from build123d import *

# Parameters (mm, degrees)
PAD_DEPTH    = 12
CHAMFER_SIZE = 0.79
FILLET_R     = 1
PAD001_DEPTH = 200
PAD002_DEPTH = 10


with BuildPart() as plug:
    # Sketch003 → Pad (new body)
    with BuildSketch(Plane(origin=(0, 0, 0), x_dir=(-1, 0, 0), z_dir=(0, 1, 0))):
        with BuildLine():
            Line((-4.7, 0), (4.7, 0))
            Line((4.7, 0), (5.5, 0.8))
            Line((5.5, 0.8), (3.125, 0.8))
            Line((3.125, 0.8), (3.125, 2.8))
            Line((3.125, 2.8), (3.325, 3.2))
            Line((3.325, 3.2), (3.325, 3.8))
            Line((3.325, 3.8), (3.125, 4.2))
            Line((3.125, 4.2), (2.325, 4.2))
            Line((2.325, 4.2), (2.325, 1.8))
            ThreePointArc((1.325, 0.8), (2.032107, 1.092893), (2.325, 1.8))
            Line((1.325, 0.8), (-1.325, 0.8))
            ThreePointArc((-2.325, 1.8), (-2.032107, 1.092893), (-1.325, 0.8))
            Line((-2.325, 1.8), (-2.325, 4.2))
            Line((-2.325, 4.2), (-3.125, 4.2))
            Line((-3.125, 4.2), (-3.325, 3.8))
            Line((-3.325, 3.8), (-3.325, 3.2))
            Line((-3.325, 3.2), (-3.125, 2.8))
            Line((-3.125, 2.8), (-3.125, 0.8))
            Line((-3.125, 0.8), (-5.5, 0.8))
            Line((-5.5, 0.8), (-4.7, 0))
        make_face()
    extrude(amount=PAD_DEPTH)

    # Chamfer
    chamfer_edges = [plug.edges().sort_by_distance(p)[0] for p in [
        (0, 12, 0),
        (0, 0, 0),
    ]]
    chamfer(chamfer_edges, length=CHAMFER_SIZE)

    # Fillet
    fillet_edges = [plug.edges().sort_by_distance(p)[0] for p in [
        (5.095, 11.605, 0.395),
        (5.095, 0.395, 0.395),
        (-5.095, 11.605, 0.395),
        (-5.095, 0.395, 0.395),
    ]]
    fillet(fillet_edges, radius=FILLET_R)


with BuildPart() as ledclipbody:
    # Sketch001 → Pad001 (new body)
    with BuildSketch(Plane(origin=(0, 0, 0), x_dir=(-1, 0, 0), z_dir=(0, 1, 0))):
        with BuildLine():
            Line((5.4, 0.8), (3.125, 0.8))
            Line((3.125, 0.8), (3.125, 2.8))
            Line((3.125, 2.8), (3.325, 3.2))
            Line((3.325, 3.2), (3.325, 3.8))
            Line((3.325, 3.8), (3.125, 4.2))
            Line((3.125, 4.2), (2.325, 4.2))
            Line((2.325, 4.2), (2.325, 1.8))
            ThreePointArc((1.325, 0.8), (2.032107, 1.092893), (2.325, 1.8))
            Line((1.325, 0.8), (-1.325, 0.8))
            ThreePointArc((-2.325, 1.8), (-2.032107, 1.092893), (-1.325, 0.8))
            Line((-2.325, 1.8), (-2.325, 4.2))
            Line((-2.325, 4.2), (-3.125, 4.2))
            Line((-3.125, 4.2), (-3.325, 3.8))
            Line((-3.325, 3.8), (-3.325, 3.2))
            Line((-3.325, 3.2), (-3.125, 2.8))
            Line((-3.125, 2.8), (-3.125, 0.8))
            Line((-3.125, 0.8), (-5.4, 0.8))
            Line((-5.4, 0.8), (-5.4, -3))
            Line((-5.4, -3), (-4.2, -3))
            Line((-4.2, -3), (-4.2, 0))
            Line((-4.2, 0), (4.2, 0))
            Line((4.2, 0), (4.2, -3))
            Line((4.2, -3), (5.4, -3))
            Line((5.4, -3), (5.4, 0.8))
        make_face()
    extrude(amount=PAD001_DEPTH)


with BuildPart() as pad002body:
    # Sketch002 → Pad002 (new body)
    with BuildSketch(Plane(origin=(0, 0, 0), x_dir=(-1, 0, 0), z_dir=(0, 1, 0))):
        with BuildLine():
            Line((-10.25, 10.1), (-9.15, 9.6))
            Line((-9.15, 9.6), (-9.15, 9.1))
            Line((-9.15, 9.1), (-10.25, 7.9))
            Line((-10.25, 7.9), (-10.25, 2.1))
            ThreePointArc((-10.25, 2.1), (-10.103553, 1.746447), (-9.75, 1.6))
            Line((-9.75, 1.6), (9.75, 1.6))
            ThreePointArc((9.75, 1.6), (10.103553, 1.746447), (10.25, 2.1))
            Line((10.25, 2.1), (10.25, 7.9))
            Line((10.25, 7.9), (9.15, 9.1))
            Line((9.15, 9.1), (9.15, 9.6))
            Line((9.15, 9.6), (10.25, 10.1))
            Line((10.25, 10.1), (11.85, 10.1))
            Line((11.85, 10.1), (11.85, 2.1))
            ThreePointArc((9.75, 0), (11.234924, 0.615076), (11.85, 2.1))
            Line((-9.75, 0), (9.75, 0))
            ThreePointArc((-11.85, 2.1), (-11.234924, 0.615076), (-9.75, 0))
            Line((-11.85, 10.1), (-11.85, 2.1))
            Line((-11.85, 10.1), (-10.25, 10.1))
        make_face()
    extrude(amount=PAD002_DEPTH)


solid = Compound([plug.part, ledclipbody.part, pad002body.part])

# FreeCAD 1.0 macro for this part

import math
import FreeCAD as App
import Part
import Sketcher


def edges_at(feature, points):
    """Names of the edges that pass closest to the given points."""
    edges = feature.Shape.Edges
    near = lambda p: min(range(len(edges)), key=lambda i: edges[i].distToShape(Part.Vertex(*p))[0])
    return sorted({f"Edge{near(p) + 1}" for p in points})

doc = App.newDocument("Part")
params = doc.addObject("Spreadsheet::Sheet", "Params")
for row, (alias, value) in enumerate([
    ("sketch1_radius", "0.999999 mm"),
    ("sketch1_height", "2 mm"),
    ("sketch1_width", "9.4 mm"),
    ("sketch1_width2", "0.8 mm"),
    ("sketch1_height2", "0.6 mm"),
    ("pad1_length", "12 mm"),
    ("chamfer_size", "0.79 mm"),
    ("fillet_radius", "1 mm"),
    ("sketch2_radius", "0.999999 mm"),
    ("sketch2_height", "2 mm"),
    ("sketch2_height2", "3 mm"),
    ("sketch2_width", "0.8 mm"),
    ("sketch2_width2", "1.2 mm"),
    ("pad2_length", "200 mm"),
    ("sketch3_radius", "2.100001 mm"),
    ("sketch3_radius2", "0.500001 mm"),
    ("sketch3_height", "8 mm"),
    ("sketch3_width", "19.5 mm"),
    ("sketch3_height2", "0.5 mm"),
    ("pad3_length", "10 mm"),
], start=1):
    params.set(f"A{row}", alias)
    params.set(f"B{row}", "=" + value)
    params.setAlias(f"B{row}", alias)

body = doc.addObject("PartDesign::Body", "Body")

# Sketch on XZ plane
sketch1 = body.newObject("Sketcher::SketchObject", "Sketch")
sketch1.AttachmentSupport = (doc.getObject("XZ_Plane"), [""])
sketch1.MapMode = "FlatFace"
sketch1.addGeometry([
    Part.LineSegment(App.Vector(4.7, 0, 0), App.Vector(-4.7, 0, 0)),  # 0
    Part.LineSegment(App.Vector(-4.7, 0, 0), App.Vector(-5.5, 0.8, 0)),  # 1
    Part.LineSegment(App.Vector(-5.5, 0.8, 0), App.Vector(-3.12, 0.8, 0)),  # 2
    Part.LineSegment(App.Vector(-3.12, 0.8, 0), App.Vector(-3.12, 2.8, 0)),  # 3
    Part.LineSegment(App.Vector(-3.12, 2.8, 0), App.Vector(-3.33, 3.2, 0)),  # 4
    Part.LineSegment(App.Vector(-3.33, 3.2, 0), App.Vector(-3.33, 3.8, 0)),  # 5
    Part.LineSegment(App.Vector(-3.33, 3.8, 0), App.Vector(-3.12, 4.2, 0)),  # 6
    Part.LineSegment(App.Vector(-3.12, 4.2, 0), App.Vector(-2.33, 4.2, 0)),  # 7
    Part.LineSegment(App.Vector(-2.33, 4.2, 0), App.Vector(-2.33, 1.8, 0)),  # 8
    Part.ArcOfCircle(Part.Circle(App.Vector(-1.33, 1.8, 0), App.Vector(0, 0, 1), 1), math.radians(180), math.radians(270)),  # 9
    Part.LineSegment(App.Vector(-1.32, 0.8, 0), App.Vector(1.32, 0.8, 0)),  # 10
    Part.ArcOfCircle(Part.Circle(App.Vector(1.33, 1.8, 0), App.Vector(0, 0, 1), 1), math.radians(-90), math.radians(0)),  # 11
    Part.LineSegment(App.Vector(2.33, 1.8, 0), App.Vector(2.33, 4.2, 0)),  # 12
    Part.LineSegment(App.Vector(2.33, 4.2, 0), App.Vector(3.12, 4.2, 0)),  # 13
    Part.LineSegment(App.Vector(3.12, 4.2, 0), App.Vector(3.33, 3.8, 0)),  # 14
    Part.LineSegment(App.Vector(3.33, 3.8, 0), App.Vector(3.33, 3.2, 0)),  # 15
    Part.LineSegment(App.Vector(3.33, 3.2, 0), App.Vector(3.12, 2.8, 0)),  # 16
    Part.LineSegment(App.Vector(3.12, 2.8, 0), App.Vector(3.12, 0.8, 0)),  # 17
    Part.LineSegment(App.Vector(3.12, 0.8, 0), App.Vector(5.5, 0.8, 0)),  # 18
    Part.LineSegment(App.Vector(5.5, 0.8, 0), App.Vector(4.7, 0, 0)),  # 19
], False)
sketch1.addConstraint([
    Sketcher.Constraint("Coincident", 0, 2, 1, 1),
    Sketcher.Constraint("Coincident", 1, 2, 2, 1),
    Sketcher.Constraint("Coincident", 2, 2, 3, 1),
    Sketcher.Constraint("Coincident", 3, 2, 4, 1),
    Sketcher.Constraint("Coincident", 4, 2, 5, 1),
    Sketcher.Constraint("Coincident", 5, 2, 6, 1),
    Sketcher.Constraint("Coincident", 6, 2, 7, 1),
    Sketcher.Constraint("Coincident", 7, 2, 8, 1),
    Sketcher.Constraint("Tangent", 8, 2, 9, 1),
    Sketcher.Constraint("Tangent", 9, 2, 10, 1),
    Sketcher.Constraint("Tangent", 10, 2, 11, 1),
    Sketcher.Constraint("Tangent", 11, 2, 12, 1),
    Sketcher.Constraint("Coincident", 12, 2, 13, 1),
    Sketcher.Constraint("Coincident", 13, 2, 14, 1),
    Sketcher.Constraint("Coincident", 14, 2, 15, 1),
    Sketcher.Constraint("Coincident", 15, 2, 16, 1),
    Sketcher.Constraint("Coincident", 16, 2, 17, 1),
    Sketcher.Constraint("Coincident", 17, 2, 18, 1),
    Sketcher.Constraint("Coincident", 18, 2, 19, 1),
    Sketcher.Constraint("Coincident", 19, 2, 0, 1),
    Sketcher.Constraint("Horizontal", 0),
    Sketcher.Constraint("Horizontal", 2),
    Sketcher.Constraint("Vertical", 3),
    Sketcher.Constraint("Vertical", 5),
    Sketcher.Constraint("Horizontal", 7),
    Sketcher.Constraint("Vertical", 8),
    Sketcher.Constraint("Horizontal", 10),
    Sketcher.Constraint("Vertical", 12),
    Sketcher.Constraint("Horizontal", 13),
    Sketcher.Constraint("Vertical", 15),
    Sketcher.Constraint("Vertical", 17),
    Sketcher.Constraint("Horizontal", 18),
    Sketcher.Constraint("Equal", 9, 11),
    Sketcher.Constraint("Symmetric", 0, 2, 19, 2, -1, 1),
    Sketcher.Constraint("Symmetric", 7, 2, 12, 2, -2),
    Sketcher.Constraint("Symmetric", 5, 2, 14, 2, -2),
    Sketcher.Constraint("Symmetric", 3, 2, 16, 2, -2),
    Sketcher.Constraint("Symmetric", 1, 2, 18, 2, -2),
    Sketcher.Constraint("Parallel", 4, 14),
    Sketcher.Constraint("Parallel", 6, 16),
    Sketcher.Constraint("Perpendicular", 1, 19),
    Sketcher.Constraint("Horizontal", 2, 2, 9, 2),
    Sketcher.Constraint("Horizontal", 4, 2, 15, 2),
    Sketcher.Constraint("Vertical", 3, 2, 6, 2),
    Sketcher.Constraint("Radius", 9, 0.999999),
    Sketcher.Constraint("DistanceY", 3, 1, 3, 2, 2.0),
    Sketcher.Constraint("DistanceX", 0, 2, 0, 1, 9.4),
    Sketcher.Constraint("DistanceX", 7, 1, 7, 2, 0.8),
    Sketcher.Constraint("DistanceY", 5, 1, 5, 2, 0.6),
    Sketcher.Constraint("DistanceY", 8, 2, 8, 1, 2.4),
    Sketcher.Constraint("DistanceX", 4, 2, 9, 3, 1.999999),
    Sketcher.Constraint("DistanceX", 10, 1, 10, 2, 2.65),
    Sketcher.Constraint("DistanceY", -1, 1, 9, 3, 1.799999),
])
sketch1.setExpression("Constraints[44]", "Params.sketch1_radius")
sketch1.setExpression("Constraints[45]", "Params.sketch1_height")
sketch1.setExpression("Constraints[46]", "Params.sketch1_width")
sketch1.setExpression("Constraints[47]", "Params.sketch1_width2")
sketch1.setExpression("Constraints[48]", "Params.sketch1_height2")
pad1 = body.newObject("PartDesign::Pad", "Pad")
pad1.Profile = sketch1
pad1.setExpression("Length", "Params.pad1_length")
pad1.Reversed = True
doc.recompute()

chamfer = body.newObject("PartDesign::Chamfer", "Chamfer")
chamfer.Base = (pad1, edges_at(pad1, [(0, 12, 0), (0, 0, 0)]))
chamfer.setExpression("Size", "Params.chamfer_size")
doc.recompute()

fillet = body.newObject("PartDesign::Fillet", "Fillet")
fillet.Base = (chamfer, edges_at(chamfer, [
    (5.095, 11.605, 0.395),
    (5.095, 0.395, 0.395),
    (-5.095, 11.605, 0.395),
    (-5.095, 0.395, 0.395),
]))
fillet.setExpression("Radius", "Params.fillet_radius")
body2 = doc.addObject("PartDesign::Body", "Body001")

# Sketch on XZ plane
sketch2 = body2.newObject("Sketcher::SketchObject", "Sketch001")
sketch2.AttachmentSupport = (doc.getObject("XZ_Plane001"), [""])
sketch2.MapMode = "FlatFace"
sketch2.addGeometry([
    Part.LineSegment(App.Vector(-5.4, 0.8, 0), App.Vector(-3.12, 0.8, 0)),  # 0
    Part.LineSegment(App.Vector(-3.12, 0.8, 0), App.Vector(-3.12, 2.8, 0)),  # 1
    Part.LineSegment(App.Vector(-3.12, 2.8, 0), App.Vector(-3.33, 3.2, 0)),  # 2
    Part.LineSegment(App.Vector(-3.33, 3.2, 0), App.Vector(-3.33, 3.8, 0)),  # 3
    Part.LineSegment(App.Vector(-3.33, 3.8, 0), App.Vector(-3.12, 4.2, 0)),  # 4
    Part.LineSegment(App.Vector(-3.12, 4.2, 0), App.Vector(-2.33, 4.2, 0)),  # 5
    Part.LineSegment(App.Vector(-2.33, 4.2, 0), App.Vector(-2.33, 1.8, 0)),  # 6
    Part.ArcOfCircle(Part.Circle(App.Vector(-1.33, 1.8, 0), App.Vector(0, 0, 1), 1), math.radians(180), math.radians(270)),  # 7
    Part.LineSegment(App.Vector(-1.32, 0.8, 0), App.Vector(1.32, 0.8, 0)),  # 8
    Part.ArcOfCircle(Part.Circle(App.Vector(1.33, 1.8, 0), App.Vector(0, 0, 1), 1), math.radians(-90), math.radians(0)),  # 9
    Part.LineSegment(App.Vector(2.33, 1.8, 0), App.Vector(2.33, 4.2, 0)),  # 10
    Part.LineSegment(App.Vector(2.33, 4.2, 0), App.Vector(3.12, 4.2, 0)),  # 11
    Part.LineSegment(App.Vector(3.12, 4.2, 0), App.Vector(3.33, 3.8, 0)),  # 12
    Part.LineSegment(App.Vector(3.33, 3.8, 0), App.Vector(3.33, 3.2, 0)),  # 13
    Part.LineSegment(App.Vector(3.33, 3.2, 0), App.Vector(3.12, 2.8, 0)),  # 14
    Part.LineSegment(App.Vector(3.12, 2.8, 0), App.Vector(3.12, 0.8, 0)),  # 15
    Part.LineSegment(App.Vector(3.12, 0.8, 0), App.Vector(5.4, 0.8, 0)),  # 16
    Part.LineSegment(App.Vector(5.4, 0.8, 0), App.Vector(5.4, -3, 0)),  # 17
    Part.LineSegment(App.Vector(5.4, -3, 0), App.Vector(4.2, -3, 0)),  # 18
    Part.LineSegment(App.Vector(4.2, -3, 0), App.Vector(4.2, 0, 0)),  # 19
    Part.LineSegment(App.Vector(4.2, 0, 0), App.Vector(-4.2, 0, 0)),  # 20
    Part.LineSegment(App.Vector(-4.2, 0, 0), App.Vector(-4.2, -3, 0)),  # 21
    Part.LineSegment(App.Vector(-4.2, -3, 0), App.Vector(-5.4, -3, 0)),  # 22
    Part.LineSegment(App.Vector(-5.4, -3, 0), App.Vector(-5.4, 0.8, 0)),  # 23
], False)
sketch2.addConstraint([
    Sketcher.Constraint("Coincident", 0, 2, 1, 1),
    Sketcher.Constraint("Coincident", 1, 2, 2, 1),
    Sketcher.Constraint("Coincident", 2, 2, 3, 1),
    Sketcher.Constraint("Coincident", 3, 2, 4, 1),
    Sketcher.Constraint("Coincident", 4, 2, 5, 1),
    Sketcher.Constraint("Coincident", 5, 2, 6, 1),
    Sketcher.Constraint("Tangent", 6, 2, 7, 1),
    Sketcher.Constraint("Tangent", 7, 2, 8, 1),
    Sketcher.Constraint("Tangent", 8, 2, 9, 1),
    Sketcher.Constraint("Tangent", 9, 2, 10, 1),
    Sketcher.Constraint("Coincident", 10, 2, 11, 1),
    Sketcher.Constraint("Coincident", 11, 2, 12, 1),
    Sketcher.Constraint("Coincident", 12, 2, 13, 1),
    Sketcher.Constraint("Coincident", 13, 2, 14, 1),
    Sketcher.Constraint("Coincident", 14, 2, 15, 1),
    Sketcher.Constraint("Coincident", 15, 2, 16, 1),
    Sketcher.Constraint("Coincident", 16, 2, 17, 1),
    Sketcher.Constraint("Coincident", 17, 2, 18, 1),
    Sketcher.Constraint("Coincident", 18, 2, 19, 1),
    Sketcher.Constraint("Coincident", 19, 2, 20, 1),
    Sketcher.Constraint("Coincident", 20, 2, 21, 1),
    Sketcher.Constraint("Coincident", 21, 2, 22, 1),
    Sketcher.Constraint("Coincident", 22, 2, 23, 1),
    Sketcher.Constraint("Coincident", 23, 2, 0, 1),
    Sketcher.Constraint("Horizontal", 0),
    Sketcher.Constraint("Vertical", 1),
    Sketcher.Constraint("Vertical", 3),
    Sketcher.Constraint("Horizontal", 5),
    Sketcher.Constraint("Vertical", 6),
    Sketcher.Constraint("Horizontal", 8),
    Sketcher.Constraint("Vertical", 10),
    Sketcher.Constraint("Horizontal", 11),
    Sketcher.Constraint("Vertical", 13),
    Sketcher.Constraint("Vertical", 15),
    Sketcher.Constraint("Horizontal", 16),
    Sketcher.Constraint("Vertical", 17),
    Sketcher.Constraint("Horizontal", 18),
    Sketcher.Constraint("Vertical", 19),
    Sketcher.Constraint("Horizontal", 20),
    Sketcher.Constraint("Vertical", 21),
    Sketcher.Constraint("Horizontal", 22),
    Sketcher.Constraint("Vertical", 23),
    Sketcher.Constraint("Equal", 7, 9),
    Sketcher.Constraint("Symmetric", 19, 2, 20, 2, -1, 1),
    Sketcher.Constraint("Symmetric", 5, 2, 10, 2, -2),
    Sketcher.Constraint("Symmetric", 3, 2, 12, 2, -2),
    Sketcher.Constraint("Symmetric", 1, 2, 14, 2, -2),
    Sketcher.Constraint("Symmetric", 17, 2, 22, 2, -2),
    Sketcher.Constraint("Parallel", 2, 12),
    Sketcher.Constraint("Parallel", 4, 14),
    Sketcher.Constraint("Horizontal", 0, 2, 7, 2),
    Sketcher.Constraint("Horizontal", 2, 2, 13, 2),
    Sketcher.Constraint("Horizontal", 8, 2, 15, 2),
    Sketcher.Constraint("Vertical", 1, 2, 4, 2),
    Sketcher.Constraint("Radius", 7, 0.999999),
    Sketcher.Constraint("DistanceY", 1, 1, 1, 2, 2.0),
    Sketcher.Constraint("DistanceY", 19, 1, 19, 2, 3.0),
    Sketcher.Constraint("DistanceX", 5, 1, 5, 2, 0.8),
    Sketcher.Constraint("DistanceX", 18, 2, 18, 1, 1.2),
    Sketcher.Constraint("DistanceX", 20, 2, 20, 1, 8.4),
    Sketcher.Constraint("DistanceY", 3, 1, 3, 2, 0.6),
    Sketcher.Constraint("DistanceY", 6, 2, 6, 1, 2.4),
    Sketcher.Constraint("DistanceY", 17, 2, 17, 1, 3.8),
    Sketcher.Constraint("DistanceX", 2, 2, 7, 3, 1.999999),
    Sketcher.Constraint("DistanceX", 8, 1, 8, 2, 2.65),
])
sketch2.setExpression("Constraints[54]", "Params.sketch2_radius")
sketch2.setExpression("Constraints[55]", "Params.sketch2_height")
sketch2.setExpression("Constraints[56]", "Params.sketch2_height2")
sketch2.setExpression("Constraints[57]", "Params.sketch2_width")
sketch2.setExpression("Constraints[58]", "Params.sketch2_width2")
pad2 = body2.newObject("PartDesign::Pad", "Pad001")
pad2.Profile = sketch2
pad2.setExpression("Length", "Params.pad2_length")
pad2.Reversed = True
body3 = doc.addObject("PartDesign::Body", "Body002")

# Sketch on XZ plane
sketch3 = body3.newObject("Sketcher::SketchObject", "Sketch002")
sketch3.AttachmentSupport = (doc.getObject("XZ_Plane002"), [""])
sketch3.MapMode = "FlatFace"
sketch3.addGeometry([
    Part.LineSegment(App.Vector(9.2, 9.6, 0), App.Vector(10.2, 10.1, 0)),  # 0
    Part.LineSegment(App.Vector(10.2, 10.1, 0), App.Vector(11.8, 10.1, 0)),  # 1
    Part.LineSegment(App.Vector(11.8, 10.1, 0), App.Vector(11.8, 2.1, 0)),  # 2
    Part.ArcOfCircle(Part.Circle(App.Vector(9.7, 2.1, 0), App.Vector(0, 0, 1), 2.1), math.radians(-90), math.radians(0)),  # 3
    Part.LineSegment(App.Vector(9.8, 0, 0), App.Vector(-9.8, 0, 0)),  # 4
    Part.ArcOfCircle(Part.Circle(App.Vector(-9.7, 2.1, 0), App.Vector(0, 0, 1), 2.1), math.radians(-180), math.radians(-90)),  # 5
    Part.LineSegment(App.Vector(-11.8, 2.1, 0), App.Vector(-11.8, 10.1, 0)),  # 6
    Part.LineSegment(App.Vector(-11.8, 10.1, 0), App.Vector(-10.2, 10.1, 0)),  # 7
    Part.LineSegment(App.Vector(-10.2, 10.1, 0), App.Vector(-9.2, 9.6, 0)),  # 8
    Part.LineSegment(App.Vector(-9.2, 9.6, 0), App.Vector(-9.2, 9.1, 0)),  # 9
    Part.LineSegment(App.Vector(-9.2, 9.1, 0), App.Vector(-10.2, 7.9, 0)),  # 10
    Part.LineSegment(App.Vector(-10.2, 7.9, 0), App.Vector(-10.2, 2.1, 0)),  # 11
    Part.ArcOfCircle(Part.Circle(App.Vector(-9.7, 2.1, 0), App.Vector(0, 0, 1), 0.5), math.radians(-180), math.radians(-90)),  # 12
    Part.LineSegment(App.Vector(-9.8, 1.6, 0), App.Vector(9.8, 1.6, 0)),  # 13
    Part.ArcOfCircle(Part.Circle(App.Vector(9.7, 2.1, 0), App.Vector(0, 0, 1), 0.5), math.radians(-90), math.radians(0)),  # 14
    Part.LineSegment(App.Vector(10.2, 2.1, 0), App.Vector(10.2, 7.9, 0)),  # 15
    Part.LineSegment(App.Vector(10.2, 7.9, 0), App.Vector(9.2, 9.1, 0)),  # 16
    Part.LineSegment(App.Vector(9.2, 9.1, 0), App.Vector(9.2, 9.6, 0)),  # 17
], False)
sketch3.addConstraint([
    Sketcher.Constraint("Coincident", 0, 2, 1, 1),
    Sketcher.Constraint("Coincident", 1, 2, 2, 1),
    Sketcher.Constraint("Tangent", 2, 2, 3, 2),
    Sketcher.Constraint("Tangent", 3, 1, 4, 1),
    Sketcher.Constraint("Tangent", 4, 2, 5, 2),
    Sketcher.Constraint("Tangent", 5, 1, 6, 1),
    Sketcher.Constraint("Coincident", 6, 2, 7, 1),
    Sketcher.Constraint("Coincident", 7, 2, 8, 1),
    Sketcher.Constraint("Coincident", 8, 2, 9, 1),
    Sketcher.Constraint("Coincident", 9, 2, 10, 1),
    Sketcher.Constraint("Coincident", 10, 2, 11, 1),
    Sketcher.Constraint("Coincident", 11, 2, 12, 1),
    Sketcher.Constraint("Coincident", 12, 2, 13, 1),
    Sketcher.Constraint("Coincident", 13, 2, 14, 1),
    Sketcher.Constraint("Coincident", 14, 2, 15, 1),
    Sketcher.Constraint("Coincident", 15, 2, 16, 1),
    Sketcher.Constraint("Coincident", 16, 2, 17, 1),
    Sketcher.Constraint("Coincident", 17, 2, 0, 1),
    Sketcher.Constraint("Horizontal", 1),
    Sketcher.Constraint("Vertical", 2),
    Sketcher.Constraint("Horizontal", 4),
    Sketcher.Constraint("Vertical", 6),
    Sketcher.Constraint("Horizontal", 7),
    Sketcher.Constraint("Vertical", 9),
    Sketcher.Constraint("Vertical", 11),
    Sketcher.Constraint("Horizontal", 13),
    Sketcher.Constraint("Vertical", 15),
    Sketcher.Constraint("Vertical", 17),
    Sketcher.Constraint("Coincident", 12, 3, 5, 3),
    Sketcher.Constraint("Coincident", 14, 3, 3, 3),
    Sketcher.Constraint("Equal", 3, 5),
    Sketcher.Constraint("Symmetric", 3, 1, 4, 2, -1, 1),
    Sketcher.Constraint("Symmetric", 0, 2, 7, 2, -2),
    Sketcher.Constraint("Symmetric", 9, 2, 16, 2, -2),
    Sketcher.Constraint("Horizontal", 5, 1, 11, 2),
    Sketcher.Constraint("Horizontal", 11, 2, 14, 2),
    Sketcher.Constraint("Horizontal", 10, 2, 15, 2),
    Sketcher.Constraint("Horizontal", 8, 2, 17, 2),
    Sketcher.Constraint("Vertical", 7, 2, 10, 2),
    Sketcher.Constraint("Vertical", 4, 2, 12, 2),
    Sketcher.Constraint("Vertical", 3, 1, 13, 2),
    Sketcher.Constraint("Radius", 3, 2.100001),
    Sketcher.Constraint("Radius", 12, 0.500001),
    Sketcher.Constraint("DistanceY", 2, 2, 2, 1, 8.0),
    Sketcher.Constraint("DistanceX", 4, 2, 4, 1, 19.5),
    Sketcher.Constraint("DistanceY", 9, 2, 9, 1, 0.5),
    Sketcher.Constraint("DistanceY", 11, 2, 11, 1, 5.8),
    Sketcher.Constraint("DistanceY", 9, 2, 7, 2, 1.0),
    Sketcher.Constraint("DistanceX", 7, 2, 8, 2, 1.1),
])
sketch3.setExpression("Constraints[41]", "Params.sketch3_radius")
sketch3.setExpression("Constraints[42]", "Params.sketch3_radius2")
sketch3.setExpression("Constraints[43]", "Params.sketch3_height")
sketch3.setExpression("Constraints[44]", "Params.sketch3_width")
sketch3.setExpression("Constraints[45]", "Params.sketch3_height2")
pad3 = body3.newObject("PartDesign::Pad", "Pad002")
pad3.Profile = sketch3
pad3.setExpression("Length", "Params.pad3_length")
pad3.Reversed = True

doc.recompute()
